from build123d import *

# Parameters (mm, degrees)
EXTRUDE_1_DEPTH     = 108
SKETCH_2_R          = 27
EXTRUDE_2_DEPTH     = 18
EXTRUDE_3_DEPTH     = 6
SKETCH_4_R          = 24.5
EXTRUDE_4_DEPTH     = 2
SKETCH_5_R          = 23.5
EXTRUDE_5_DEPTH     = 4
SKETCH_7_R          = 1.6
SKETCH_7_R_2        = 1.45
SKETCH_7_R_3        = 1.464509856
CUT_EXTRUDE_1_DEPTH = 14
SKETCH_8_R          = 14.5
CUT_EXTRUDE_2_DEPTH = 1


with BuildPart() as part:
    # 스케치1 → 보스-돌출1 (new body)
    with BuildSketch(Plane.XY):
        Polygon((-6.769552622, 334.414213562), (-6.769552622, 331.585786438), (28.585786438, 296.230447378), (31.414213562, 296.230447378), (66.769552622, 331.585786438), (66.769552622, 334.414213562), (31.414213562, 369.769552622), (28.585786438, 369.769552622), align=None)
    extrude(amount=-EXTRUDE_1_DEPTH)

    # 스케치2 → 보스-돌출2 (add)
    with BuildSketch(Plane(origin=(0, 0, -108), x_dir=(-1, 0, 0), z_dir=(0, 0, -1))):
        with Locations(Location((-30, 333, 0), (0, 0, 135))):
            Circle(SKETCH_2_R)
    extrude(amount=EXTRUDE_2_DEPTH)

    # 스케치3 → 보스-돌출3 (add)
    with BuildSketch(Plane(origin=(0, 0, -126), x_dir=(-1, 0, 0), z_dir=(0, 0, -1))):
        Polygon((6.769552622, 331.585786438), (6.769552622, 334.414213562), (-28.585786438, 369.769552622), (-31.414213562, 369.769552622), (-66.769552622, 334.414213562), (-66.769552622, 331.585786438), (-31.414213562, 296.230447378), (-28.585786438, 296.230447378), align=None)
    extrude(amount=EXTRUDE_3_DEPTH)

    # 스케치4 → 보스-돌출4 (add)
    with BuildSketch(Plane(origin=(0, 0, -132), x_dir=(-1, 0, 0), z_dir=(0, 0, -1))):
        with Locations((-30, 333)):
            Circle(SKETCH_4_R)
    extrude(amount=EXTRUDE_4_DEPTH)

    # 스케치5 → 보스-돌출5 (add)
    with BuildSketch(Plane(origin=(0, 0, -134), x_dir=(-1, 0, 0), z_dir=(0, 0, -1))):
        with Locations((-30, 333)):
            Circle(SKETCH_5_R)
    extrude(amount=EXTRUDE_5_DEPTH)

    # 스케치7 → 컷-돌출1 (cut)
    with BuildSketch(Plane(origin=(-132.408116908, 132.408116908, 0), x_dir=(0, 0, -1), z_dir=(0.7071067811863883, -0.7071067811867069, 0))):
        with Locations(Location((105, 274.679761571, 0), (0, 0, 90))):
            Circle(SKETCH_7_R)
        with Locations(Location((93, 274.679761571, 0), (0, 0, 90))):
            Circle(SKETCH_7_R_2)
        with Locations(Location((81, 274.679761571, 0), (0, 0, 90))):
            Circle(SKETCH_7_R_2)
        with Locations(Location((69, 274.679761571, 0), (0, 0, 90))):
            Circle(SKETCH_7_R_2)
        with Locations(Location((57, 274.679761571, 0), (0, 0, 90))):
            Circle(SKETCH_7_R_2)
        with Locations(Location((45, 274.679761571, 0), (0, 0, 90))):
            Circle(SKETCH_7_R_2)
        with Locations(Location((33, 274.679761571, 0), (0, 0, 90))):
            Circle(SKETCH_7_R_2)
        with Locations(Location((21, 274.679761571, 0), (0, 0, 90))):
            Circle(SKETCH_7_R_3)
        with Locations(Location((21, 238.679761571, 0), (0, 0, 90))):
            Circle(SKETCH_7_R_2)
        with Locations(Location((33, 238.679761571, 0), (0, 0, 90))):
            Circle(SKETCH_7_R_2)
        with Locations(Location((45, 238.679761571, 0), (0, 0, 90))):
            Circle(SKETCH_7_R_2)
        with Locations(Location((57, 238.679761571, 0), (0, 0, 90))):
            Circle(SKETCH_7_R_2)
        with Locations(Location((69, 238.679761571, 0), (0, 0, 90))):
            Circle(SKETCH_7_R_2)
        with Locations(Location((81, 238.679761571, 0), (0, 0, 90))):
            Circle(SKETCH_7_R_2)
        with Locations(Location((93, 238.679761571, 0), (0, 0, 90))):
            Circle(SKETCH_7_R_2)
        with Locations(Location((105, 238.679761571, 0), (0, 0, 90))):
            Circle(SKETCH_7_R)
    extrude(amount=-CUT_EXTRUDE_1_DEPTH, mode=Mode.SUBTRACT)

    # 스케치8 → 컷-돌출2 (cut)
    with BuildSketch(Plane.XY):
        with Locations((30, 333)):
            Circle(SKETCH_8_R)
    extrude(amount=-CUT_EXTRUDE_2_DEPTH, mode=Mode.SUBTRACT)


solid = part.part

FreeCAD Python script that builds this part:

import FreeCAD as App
import Part
import Sketcher

doc = App.newDocument("Part")
params = doc.addObject("Spreadsheet::Sheet", "Params")
for row, (alias, value) in enumerate([
    ("sketch1_length", "50 mm"),
    ("pad1_length", "108 mm"),
    ("sketch2_diameter", "54 mm"),
    ("pad2_length", "18 mm"),
    ("sketch3_length", "50 mm"),
    ("pad3_length", "6 mm"),
    ("sketch4_diameter", "49 mm"),
    ("pad4_length", "2 mm"),
    ("sketch5_diameter", "47 mm"),
    ("pad5_length", "4 mm"),
    ("sketch6_diameter", "3.2 mm"),
    ("sketch6_diameter2", "2.9 mm"),
    ("pocket1_length", "14 mm"),
    ("sketch7_diameter", "29 mm"),
    ("pocket2_length", "1 mm"),
], start=1):
    params.set(f"A{row}", alias)
    params.set(f"B{row}", "=" + value)
    params.setAlias(f"B{row}", alias)

body = doc.addObject("PartDesign::Body", "Body")

sketch1 = body.newObject("Sketcher::SketchObject", "Sketch")
sketch1.AttachmentSupport = (doc.getObject("XY_Plane"), [""])
sketch1.MapMode = "FlatFace"
sketch1.addGeometry(Part.LineSegment(App.Vector(-6.8, 334.4, 0), App.Vector(-6.8, 331.6, 0)), False)
sketch1.addGeometry(Part.LineSegment(App.Vector(-6.8, 331.6, 0), App.Vector(28.6, 296.2, 0)), False)
sketch1.addGeometry(Part.LineSegment(App.Vector(28.6, 296.2, 0), App.Vector(31.4, 296.2, 0)), False)
sketch1.addGeometry(Part.LineSegment(App.Vector(31.4, 296.2, 0), App.Vector(66.8, 331.6, 0)), False)
sketch1.addGeometry(Part.LineSegment(App.Vector(66.8, 331.6, 0), App.Vector(66.8, 334.4, 0)), False)
sketch1.addGeometry(Part.LineSegment(App.Vector(66.8, 334.4, 0), App.Vector(31.4, 369.8, 0)), False)
sketch1.addGeometry(Part.LineSegment(App.Vector(31.4, 369.8, 0), App.Vector(28.6, 369.8, 0)), False)
sketch1.addGeometry(Part.LineSegment(App.Vector(28.6, 369.8, 0), App.Vector(-6.8, 334.4, 0)), False)
sketch1.addConstraint(Sketcher.Constraint("Coincident", 0, 2, 1, 1))
sketch1.addConstraint(Sketcher.Constraint("Coincident", 1, 2, 2, 1))
sketch1.addConstraint(Sketcher.Constraint("Coincident", 2, 2, 3, 1))
sketch1.addConstraint(Sketcher.Constraint("Coincident", 3, 2, 4, 1))
sketch1.addConstraint(Sketcher.Constraint("Coincident", 4, 2, 5, 1))
sketch1.addConstraint(Sketcher.Constraint("Coincident", 5, 2, 6, 1))
sketch1.addConstraint(Sketcher.Constraint("Coincident", 6, 2, 7, 1))
sketch1.addConstraint(Sketcher.Constraint("Coincident", 7, 2, 0, 1))
sketch1.addConstraint(Sketcher.Constraint("Vertical", 0))
sketch1.addConstraint(Sketcher.Constraint("Horizontal", 2))
sketch1.addConstraint(Sketcher.Constraint("Vertical", 4))
sketch1.addConstraint(Sketcher.Constraint("Horizontal", 6))
sketch1.addConstraint(Sketcher.Constraint("Perpendicular", 1, 3))
sketch1.addConstraint(Sketcher.Constraint("Perpendicular", 3, 5))
sketch1.addConstraint(Sketcher.Constraint("Perpendicular", 5, 7))
sketch1.addConstraint(Sketcher.Constraint("Horizontal", 0, 2, 3, 2))
sketch1.addConstraint(Sketcher.Constraint("Horizontal", 4, 2, 7, 2))
sketch1.addConstraint(Sketcher.Constraint("Vertical", 2, 2, 5, 2))
sketch1.addConstraint(Sketcher.Constraint("Vertical", 1, 2, 6, 2))
sketch1.addConstraint(Sketcher.Constraint("Equal", 6, 0))
sketch1.addConstraint(Sketcher.Constraint("Distance", 1, 50.0))
sketch1.addConstraint(Sketcher.Constraint("DistanceX", 2, 1, 2, 2, 2.828427))
sketch1.addConstraint(Sketcher.Constraint("DistanceX", 0, 2, -1, 1, 6.769553))
sketch1.addConstraint(Sketcher.Constraint("DistanceY", -1, 1, 0, 2, 331.585786))
sketch1.setExpression("Constraints[20]", "Params.sketch1_length")
pad1 = body.newObject("PartDesign::Pad", "Pad")
pad1.Profile = sketch1
pad1.setExpression("Length", "Params.pad1_length")
pad1.Reversed = True

sketch2 = body.newObject("Sketcher::SketchObject", "Sketch001")
sketch2.AttachmentSupport = (doc.getObject("XY_Plane"), [""])
sketch2.MapMode = "FlatFace"
sketch2.AttachmentOffset = App.Placement(App.Vector(0, 0, -108), App.Rotation())
sketch2.addGeometry(Part.Circle(App.Vector(30, 333, 0), App.Vector(0, 0, 1), 27), False)
sketch2.addConstraint(Sketcher.Constraint("Diameter", 0, 54.0))
sketch2.addConstraint(Sketcher.Constraint("DistanceX", -1, 1, 0, 3, 30.0))
sketch2.addConstraint(Sketcher.Constraint("DistanceY", -1, 1, 0, 3, 333.0))
sketch2.setExpression("Constraints[0]", "Params.sketch2_diameter")
pad2 = body.newObject("PartDesign::Pad", "Pad001")
pad2.Profile = sketch2
pad2.setExpression("Length", "Params.pad2_length")
pad2.Reversed = True

sketch3 = body.newObject("Sketcher::SketchObject", "Sketch002")
sketch3.AttachmentSupport = (doc.getObject("XY_Plane"), [""])
sketch3.MapMode = "FlatFace"
sketch3.AttachmentOffset = App.Placement(App.Vector(0, 0, -126), App.Rotation())
sketch3.addGeometry(Part.LineSegment(App.Vector(-6.8, 331.6, 0), App.Vector(-6.8, 334.4, 0)), False)
sketch3.addGeometry(Part.LineSegment(App.Vector(-6.8, 334.4, 0), App.Vector(28.6, 369.8, 0)), False)
sketch3.addGeometry(Part.LineSegment(App.Vector(28.6, 369.8, 0), App.Vector(31.4, 369.8, 0)), False)
sketch3.addGeometry(Part.LineSegment(App.Vector(31.4, 369.8, 0), App.Vector(66.8, 334.4, 0)), False)
sketch3.addGeometry(Part.LineSegment(App.Vector(66.8, 334.4, 0), App.Vector(66.8, 331.6, 0)), False)
sketch3.addGeometry(Part.LineSegment(App.Vector(66.8, 331.6, 0), App.Vector(31.4, 296.2, 0)), False)
sketch3.addGeometry(Part.LineSegment(App.Vector(31.4, 296.2, 0), App.Vector(28.6, 296.2, 0)), False)
sketch3.addGeometry(Part.LineSegment(App.Vector(28.6, 296.2, 0), App.Vector(-6.8, 331.6, 0)), False)
sketch3.addConstraint(Sketcher.Constraint("Coincident", 0, 2, 1, 1))
sketch3.addConstraint(Sketcher.Constraint("Coincident", 1, 2, 2, 1))
sketch3.addConstraint(Sketcher.Constraint("Coincident", 2, 2, 3, 1))
sketch3.addConstraint(Sketcher.Constraint("Coincident", 3, 2, 4, 1))
sketch3.addConstraint(Sketcher.Constraint("Coincident", 4, 2, 5, 1))
sketch3.addConstraint(Sketcher.Constraint("Coincident", 5, 2, 6, 1))
sketch3.addConstraint(Sketcher.Constraint("Coincident", 6, 2, 7, 1))
sketch3.addConstraint(Sketcher.Constraint("Coincident", 7, 2, 0, 1))
sketch3.addConstraint(Sketcher.Constraint("Vertical", 0))
sketch3.addConstraint(Sketcher.Constraint("Horizontal", 2))
sketch3.addConstraint(Sketcher.Constraint("Vertical", 4))
sketch3.addConstraint(Sketcher.Constraint("Horizontal", 6))
sketch3.addConstraint(Sketcher.Constraint("Perpendicular", 1, 3))
sketch3.addConstraint(Sketcher.Constraint("Perpendicular", 3, 5))
sketch3.addConstraint(Sketcher.Constraint("Perpendicular", 5, 7))
sketch3.addConstraint(Sketcher.Constraint("Horizontal", 0, 2, 3, 2))
sketch3.addConstraint(Sketcher.Constraint("Horizontal", 4, 2, 7, 2))
sketch3.addConstraint(Sketcher.Constraint("Vertical", 2, 2, 5, 2))
sketch3.addConstraint(Sketcher.Constraint("Vertical", 1, 2, 6, 2))
sketch3.addConstraint(Sketcher.Constraint("Equal", 6, 0))
sketch3.addConstraint(Sketcher.Constraint("Distance", 1, 50.0))
sketch3.addConstraint(Sketcher.Constraint("DistanceX", 2, 1, 2, 2, 2.828427))
sketch3.addConstraint(Sketcher.Constraint("DistanceX", 0, 2, -1, 1, 6.769553))
sketch3.addConstraint(Sketcher.Constraint("DistanceY", -1, 1, 0, 2, 334.414214))
sketch3.setExpression("Constraints[20]", "Params.sketch3_length")
pad3 = body.newObject("PartDesign::Pad", "Pad002")
pad3.Profile = sketch3
pad3.setExpression("Length", "Params.pad3_length")
pad3.Reversed = True

sketch4 = body.newObject("Sketcher::SketchObject", "Sketch003")
sketch4.AttachmentSupport = (doc.getObject("XY_Plane"), [""])
sketch4.MapMode = "FlatFace"
sketch4.AttachmentOffset = App.Placement(App.Vector(0, 0, -132), App.Rotation())
sketch4.addGeometry(Part.Circle(App.Vector(30, 333, 0), App.Vector(0, 0, 1), 24), False)
sketch4.addConstraint(Sketcher.Constraint("Diameter", 0, 49.0))
sketch4.addConstraint(Sketcher.Constraint("DistanceX", -1, 1, 0, 3, 30.0))
sketch4.addConstraint(Sketcher.Constraint("DistanceY", -1, 1, 0, 3, 333.0))
sketch4.setExpression("Constraints[0]", "Params.sketch4_diameter")
pad4 = body.newObject("PartDesign::Pad", "Pad003")
pad4.Profile = sketch4
pad4.setExpression("Length", "Params.pad4_length")
pad4.Reversed = True

sketch5 = body.newObject("Sketcher::SketchObject", "Sketch004")
sketch5.AttachmentSupport = (doc.getObject("XY_Plane"), [""])
sketch5.MapMode = "FlatFace"
sketch5.AttachmentOffset = App.Placement(App.Vector(0, 0, -134), App.Rotation())
sketch5.addGeometry(Part.Circle(App.Vector(30, 333, 0), App.Vector(0, 0, 1), 24), False)
sketch5.addConstraint(Sketcher.Constraint("Diameter", 0, 47.0))
sketch5.addConstraint(Sketcher.Constraint("DistanceX", -1, 1, 0, 3, 30.0))
sketch5.addConstraint(Sketcher.Constraint("DistanceY", -1, 1, 0, 3, 333.0))
sketch5.setExpression("Constraints[0]", "Params.sketch5_diameter")
pad5 = body.newObject("PartDesign::Pad", "Pad004")
pad5.Profile = sketch5
pad5.setExpression("Length", "Params.pad5_length")
pad5.Reversed = True

sketch6 = body.newObject("Sketcher::SketchObject", "Sketch005")
sketch6.Placement = App.Placement(App.Vector(-132.408117, 132.408117, 0), App.Rotation(App.Vector(0, 0, -1), App.Vector(0.707106781, 0.707106781, 0), App.Vector(0.707106781, -0.707106781, 0), "ZXY"))
sketch6.addGeometry(Part.Circle(App.Vector(105, 274.7, 0), App.Vector(0, 0, 1), 1.6), False)
sketch6.addGeometry(Part.Circle(App.Vector(93, 274.7, 0), App.Vector(0, 0, 1), 1.4), False)
sketch6.addGeometry(Part.Circle(App.Vector(81, 274.7, 0), App.Vector(0, 0, 1), 1.4), False)
sketch6.addGeometry(Part.Circle(App.Vector(69, 274.7, 0), App.Vector(0, 0, 1), 1.4), False)
sketch6.addGeometry(Part.Circle(App.Vector(57, 274.7, 0), App.Vector(0, 0, 1), 1.4), False)
sketch6.addGeometry(Part.Circle(App.Vector(45, 274.7, 0), App.Vector(0, 0, 1), 1.4), False)
sketch6.addGeometry(Part.Circle(App.Vector(33, 274.7, 0), App.Vector(0, 0, 1), 1.4), False)
sketch6.addGeometry(Part.Circle(App.Vector(21, 274.7, 0), App.Vector(0, 0, 1), 1.5), False)
sketch6.addGeometry(Part.Circle(App.Vector(21, 238.7, 0), App.Vector(0, 0, 1), 1.4), False)
sketch6.addGeometry(Part.Circle(App.Vector(33, 238.7, 0), App.Vector(0, 0, 1), 1.4), False)
sketch6.addGeometry(Part.Circle(App.Vector(45, 238.7, 0), App.Vector(0, 0, 1), 1.4), False)
sketch6.addGeometry(Part.Circle(App.Vector(57, 238.7, 0), App.Vector(0, 0, 1), 1.4), False)
sketch6.addGeometry(Part.Circle(App.Vector(69, 238.7, 0), App.Vector(0, 0, 1), 1.4), False)
sketch6.addGeometry(Part.Circle(App.Vector(81, 238.7, 0), App.Vector(0, 0, 1), 1.4), False)
sketch6.addGeometry(Part.Circle(App.Vector(93, 238.7, 0), App.Vector(0, 0, 1), 1.4), False)
sketch6.addGeometry(Part.Circle(App.Vector(105, 238.7, 0), App.Vector(0, 0, 1), 1.6), False)
sketch6.addConstraint(Sketcher.Constraint("Equal", 1, 2))
sketch6.addConstraint(Sketcher.Constraint("Equal", 2, 3))
sketch6.addConstraint(Sketcher.Constraint("Equal", 3, 4))
sketch6.addConstraint(Sketcher.Constraint("Equal", 4, 5))
sketch6.addConstraint(Sketcher.Constraint("Equal", 5, 6))
sketch6.addConstraint(Sketcher.Constraint("Equal", 6, 8))
sketch6.addConstraint(Sketcher.Constraint("Equal", 8, 9))
sketch6.addConstraint(Sketcher.Constraint("Equal", 9, 10))
sketch6.addConstraint(Sketcher.Constraint("Equal", 10, 11))
sketch6.addConstraint(Sketcher.Constraint("Equal", 11, 12))
sketch6.addConstraint(Sketcher.Constraint("Equal", 12, 13))
sketch6.addConstraint(Sketcher.Constraint("Equal", 13, 14))
sketch6.addConstraint(Sketcher.Constraint("Equal", 0, 15))
sketch6.addConstraint(Sketcher.Constraint("Horizontal", 0, 3, 1, 3))
sketch6.addConstraint(Sketcher.Constraint("Horizontal", 1, 3, 2, 3))
sketch6.addConstraint(Sketcher.Constraint("Horizontal", 2, 3, 3, 3))
sketch6.addConstraint(Sketcher.Constraint("Horizontal", 3, 3, 4, 3))
sketch6.addConstraint(Sketcher.Constraint("Horizontal", 4, 3, 5, 3))
sketch6.addConstraint(Sketcher.Constraint("Horizontal", 5, 3, 6, 3))
sketch6.addConstraint(Sketcher.Constraint("Horizontal", 6, 3, 7, 3))
sketch6.addConstraint(Sketcher.Constraint("Horizontal", 8, 3, 9, 3))
sketch6.addConstraint(Sketcher.Constraint("Horizontal", 9, 3, 10, 3))
sketch6.addConstraint(Sketcher.Constraint("Horizontal", 10, 3, 11, 3))
sketch6.addConstraint(Sketcher.Constraint("Horizontal", 11, 3, 12, 3))
sketch6.addConstraint(Sketcher.Constraint("Horizontal", 12, 3, 13, 3))
sketch6.addConstraint(Sketcher.Constraint("Horizontal", 13, 3, 14, 3))
sketch6.addConstraint(Sketcher.Constraint("Horizontal", 14, 3, 15, 3))
sketch6.addConstraint(Sketcher.Constraint("Vertical", 7, 3, 8, 3))
sketch6.addConstraint(Sketcher.Constraint("Vertical", 6, 3, 9, 3))
sketch6.addConstraint(Sketcher.Constraint("Vertical", 5, 3, 10, 3))
sketch6.addConstraint(Sketcher.Constraint("Vertical", 4, 3, 11, 3))
sketch6.addConstraint(Sketcher.Constraint("Vertical", 3, 3, 12, 3))
sketch6.addConstraint(Sketcher.Constraint("Vertical", 2, 3, 13, 3))
sketch6.addConstraint(Sketcher.Constraint("Vertical", 1, 3, 14, 3))
sketch6.addConstraint(Sketcher.Constraint("Vertical", 0, 3, 15, 3))
sketch6.addConstraint(Sketcher.Constraint("Diameter", 0, 3.2))
sketch6.addConstraint(Sketcher.Constraint("Diameter", 1, 2.9))
sketch6.addConstraint(Sketcher.Constraint("DistanceX", -1, 1, 0, 3, 105.0))
sketch6.addConstraint(Sketcher.Constraint("DistanceX", -1, 1, 1, 3, 93.0))
sketch6.addConstraint(Sketcher.Constraint("DistanceX", -1, 1, 2, 3, 81.0))
sketch6.addConstraint(Sketcher.Constraint("DistanceX", -1, 1, 3, 3, 69.0))
sketch6.addConstraint(Sketcher.Constraint("DistanceX", -1, 1, 4, 3, 57.0))
sketch6.addConstraint(Sketcher.Constraint("DistanceX", -1, 1, 5, 3, 45.0))
sketch6.addConstraint(Sketcher.Constraint("DistanceX", -1, 1, 6, 3, 33.0))
sketch6.addConstraint(Sketcher.Constraint("DistanceX", -1, 1, 7, 3, 21.0))
sketch6.addConstraint(Sketcher.Constraint("DistanceY", 8, 3, 7, 3, 36.0))
sketch6.addConstraint(Sketcher.Constraint("Diameter", 7, 2.92902))
sketch6.addConstraint(Sketcher.Constraint("DistanceY", -1, 1, 0, 3, 274.679761))
sketch6.setExpression("Constraints[35]", "Params.sketch6_diameter")
sketch6.setExpression("Constraints[36]", "Params.sketch6_diameter2")
pocket1 = body.newObject("PartDesign::Pocket", "Pocket")
pocket1.Profile = sketch6
pocket1.setExpression("Length", "Params.pocket1_length")

sketch7 = body.newObject("Sketcher::SketchObject", "Sketch006")
sketch7.AttachmentSupport = (doc.getObject("XY_Plane"), [""])
sketch7.MapMode = "FlatFace"
sketch7.addGeometry(Part.Circle(App.Vector(30, 333, 0), App.Vector(0, 0, 1), 14), False)
sketch7.addConstraint(Sketcher.Constraint("Diameter", 0, 29.0))
sketch7.addConstraint(Sketcher.Constraint("DistanceX", -1, 1, 0, 3, 30.0))
sketch7.addConstraint(Sketcher.Constraint("DistanceY", -1, 1, 0, 3, 333.0))
sketch7.setExpression("Constraints[0]", "Params.sketch7_diameter")
pocket2 = body.newObject("PartDesign::Pocket", "Pocket001")
pocket2.Profile = sketch7
pocket2.setExpression("Length", "Params.pocket2_length")

doc.recompute()
